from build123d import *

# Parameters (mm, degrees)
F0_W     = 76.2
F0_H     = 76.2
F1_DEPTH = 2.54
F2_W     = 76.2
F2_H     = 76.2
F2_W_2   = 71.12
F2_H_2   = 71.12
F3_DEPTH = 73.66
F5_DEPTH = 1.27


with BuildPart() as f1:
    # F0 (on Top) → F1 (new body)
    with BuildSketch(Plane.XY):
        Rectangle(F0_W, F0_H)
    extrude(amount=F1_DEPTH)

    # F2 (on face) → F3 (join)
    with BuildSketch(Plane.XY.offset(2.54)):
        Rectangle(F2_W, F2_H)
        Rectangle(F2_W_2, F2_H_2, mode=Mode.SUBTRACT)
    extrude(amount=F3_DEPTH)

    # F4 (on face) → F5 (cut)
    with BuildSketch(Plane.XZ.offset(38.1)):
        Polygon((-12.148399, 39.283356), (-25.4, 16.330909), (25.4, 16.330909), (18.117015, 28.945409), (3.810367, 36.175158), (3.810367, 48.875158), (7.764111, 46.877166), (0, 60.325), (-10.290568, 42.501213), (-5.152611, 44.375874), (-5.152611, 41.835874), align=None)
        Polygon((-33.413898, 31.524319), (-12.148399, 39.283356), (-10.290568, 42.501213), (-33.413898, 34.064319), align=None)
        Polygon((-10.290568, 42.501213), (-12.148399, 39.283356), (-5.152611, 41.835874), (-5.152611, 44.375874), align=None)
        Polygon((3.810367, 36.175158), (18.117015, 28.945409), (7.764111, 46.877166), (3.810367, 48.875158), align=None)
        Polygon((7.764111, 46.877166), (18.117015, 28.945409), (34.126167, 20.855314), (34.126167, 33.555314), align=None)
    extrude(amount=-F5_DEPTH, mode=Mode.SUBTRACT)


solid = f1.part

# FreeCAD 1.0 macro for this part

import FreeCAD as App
import Part
import Sketcher
from FreeCAD import Vector
Q = App.Units.Quantity


def add_polygon(sketch, points):
    """Adds a closed chain of lines whose ends are joined by coincident constraints."""
    first, n = sketch.GeometryCount, len(points)
    for a, b in zip(points, points[1:] + points[:1]):
        sketch.addGeometry(Part.LineSegment(App.Vector(*a, 0), App.Vector(*b, 0)), False)
    for i in range(n):
        sketch.addConstraint(Sketcher.Constraint("Coincident", first + i, 2, first + (i + 1) % n, 1))

doc = App.newDocument("Part")
body = doc.addObject("PartDesign::Body", "Body")

sketch1 = body.newObject("Sketcher::SketchObject", "Sketch")
sketch1.AttachmentSupport = (doc.getObject("XY_Plane"), [""])
sketch1.MapMode = "FlatFace"
add_polygon(sketch1, [(-38, 38), (-38, -38), (38, -38), (38, 38)])
sketch1.addConstraint(Sketcher.Constraint("Vertical", 0))
sketch1.addConstraint(Sketcher.Constraint("Horizontal", 1))
sketch1.addConstraint(Sketcher.Constraint("Vertical", 2))
sketch1.addConstraint(Sketcher.Constraint("Horizontal", 3))
sketch1.addConstraint(Sketcher.Constraint("Symmetric", 0, 2, 2, 2, -1, 1))
sketch1.addConstraint(Sketcher.Constraint("Equal", 3, 0))
sketch1.addConstraint(Sketcher.Constraint("DistanceX", 1, 1, 1, 2, Q("3 in")))
pad1 = body.newObject("PartDesign::Pad", "Pad")
pad1.Profile = sketch1
pad1.Length = Q("0.1 in")

sketch2 = body.newObject("Sketcher::SketchObject", "Sketch001")
sketch2.AttachmentSupport = (doc.getObject("XY_Plane"), [""])
sketch2.MapMode = "FlatFace"
sketch2.AttachmentOffset = App.Placement(Vector(0, 0, 0.1 * 25.4), App.Rotation())
add_polygon(sketch2, [(-38, 38), (-38, -38), (38, -38), (38, 38)])
add_polygon(sketch2, [(36, -36), (-36, -36), (-36, 36), (36, 36)])
sketch2.addConstraint(Sketcher.Constraint("Vertical", 0))
sketch2.addConstraint(Sketcher.Constraint("Horizontal", 1))
sketch2.addConstraint(Sketcher.Constraint("Vertical", 2))
sketch2.addConstraint(Sketcher.Constraint("Horizontal", 3))
sketch2.addConstraint(Sketcher.Constraint("Horizontal", 4))
sketch2.addConstraint(Sketcher.Constraint("Vertical", 5))
sketch2.addConstraint(Sketcher.Constraint("Horizontal", 6))
sketch2.addConstraint(Sketcher.Constraint("Vertical", 7))
sketch2.addConstraint(Sketcher.Constraint("Symmetric", 0, 2, 2, 2, -1, 1))
sketch2.addConstraint(Sketcher.Constraint("Symmetric", 4, 2, 6, 2, -1, 1))
sketch2.addConstraint(Sketcher.Constraint("Equal", 3, 0))
sketch2.addConstraint(Sketcher.Constraint("Equal", 6, 5))
sketch2.addConstraint(Sketcher.Constraint("DistanceX", 1, 1, 1, 2, Q("3 in")))
sketch2.addConstraint(Sketcher.Constraint("DistanceX", 4, 2, 4, 1, Q("2.8 in")))
pad2 = body.newObject("PartDesign::Pad", "Pad001")
pad2.Profile = sketch2
pad2.Length = Q("2.9 in")

sketch3 = body.newObject("Sketcher::SketchObject", "Sketch002")
sketch3.AttachmentSupport = (doc.getObject("XZ_Plane"), [""])
sketch3.MapMode = "FlatFace"
sketch3.AttachmentOffset = App.Placement(Vector(0, 0, 1.5 * 25.4), App.Rotation())
add_polygon(sketch3, [(-12.1, 39.3), (-25.4, 16.3), (25.4, 16.3), (18.1, 28.9), (34.1, 20.9), (34.1, 33.6), (7.8, 46.9), (0, 60.3), (-10.3, 42.5), (-33.4, 34.1), (-33.4, 31.5)])
sketch3.addConstraint(Sketcher.Constraint("Horizontal", 1))
sketch3.addConstraint(Sketcher.Constraint("Vertical", 4))
sketch3.addConstraint(Sketcher.Constraint("Vertical", 9))
sketch3.addConstraint(Sketcher.Constraint("PointOnObject", 6, 2, -2))
sketch3.addConstraint(Sketcher.Constraint("Parallel", 3, 5))
sketch3.addConstraint(Sketcher.Constraint("Parallel", 2, 6))
sketch3.addConstraint(Sketcher.Constraint("Parallel", 0, 7))
sketch3.addConstraint(Sketcher.Constraint("Parallel", 8, 10))
sketch3.addConstraint(Sketcher.Constraint("DistanceX", 1, 1, 1, 2, Q("2 in")))
sketch3.addConstraint(Sketcher.Constraint("DistanceY", 4, 1, 4, 2, Q("0.5 in")))
sketch3.addConstraint(Sketcher.Constraint("DistanceY", 9, 2, 9, 1, Q("0.1 in")))
sketch3.addConstraint(Sketcher.Constraint("DistanceX", 0, 2, -1, 1, Q("1 in")))
sketch3.addConstraint(Sketcher.Constraint("Angle", 0, Q("-119.999999 deg")))
sketch3.addConstraint(Sketcher.Constraint("Angle", 2, Q("120 deg")))
sketch3.addConstraint(Sketcher.Constraint("DistanceY", -1, 1, 6, 2, Q("2.375 in")))
sketch3.addConstraint(Sketcher.Constraint("DistanceX", 8, 2, -1, 1, Q("33.413898 mm")))
sketch3.addConstraint(Sketcher.Constraint("DistanceX", 10, 2, -1, 1, Q("12.148399 mm")))
sketch3.addConstraint(Sketcher.Constraint("DistanceY", 1, 2, 2, 2, Q("12.6145 mm")))
sketch3.addConstraint(Sketcher.Constraint("Distance", 5, Q("29.536922 mm")))
sketch3.addConstraint(Sketcher.Constraint("Distance", 6, Q("15.528221 mm")))
sketch3.addConstraint(Sketcher.Constraint("DistanceY", -1, 1, 0, 2, Q("16.330909 mm")))
sketch3.addConstraint(Sketcher.Constraint("DistanceY", -1, 1, 8, 2, Q("34.064319 mm")))
pocket1 = body.newObject("PartDesign::Pocket", "Pocket")
pocket1.Profile = sketch3
pocket1.Length = Q("0.05 in")

doc.recompute()
